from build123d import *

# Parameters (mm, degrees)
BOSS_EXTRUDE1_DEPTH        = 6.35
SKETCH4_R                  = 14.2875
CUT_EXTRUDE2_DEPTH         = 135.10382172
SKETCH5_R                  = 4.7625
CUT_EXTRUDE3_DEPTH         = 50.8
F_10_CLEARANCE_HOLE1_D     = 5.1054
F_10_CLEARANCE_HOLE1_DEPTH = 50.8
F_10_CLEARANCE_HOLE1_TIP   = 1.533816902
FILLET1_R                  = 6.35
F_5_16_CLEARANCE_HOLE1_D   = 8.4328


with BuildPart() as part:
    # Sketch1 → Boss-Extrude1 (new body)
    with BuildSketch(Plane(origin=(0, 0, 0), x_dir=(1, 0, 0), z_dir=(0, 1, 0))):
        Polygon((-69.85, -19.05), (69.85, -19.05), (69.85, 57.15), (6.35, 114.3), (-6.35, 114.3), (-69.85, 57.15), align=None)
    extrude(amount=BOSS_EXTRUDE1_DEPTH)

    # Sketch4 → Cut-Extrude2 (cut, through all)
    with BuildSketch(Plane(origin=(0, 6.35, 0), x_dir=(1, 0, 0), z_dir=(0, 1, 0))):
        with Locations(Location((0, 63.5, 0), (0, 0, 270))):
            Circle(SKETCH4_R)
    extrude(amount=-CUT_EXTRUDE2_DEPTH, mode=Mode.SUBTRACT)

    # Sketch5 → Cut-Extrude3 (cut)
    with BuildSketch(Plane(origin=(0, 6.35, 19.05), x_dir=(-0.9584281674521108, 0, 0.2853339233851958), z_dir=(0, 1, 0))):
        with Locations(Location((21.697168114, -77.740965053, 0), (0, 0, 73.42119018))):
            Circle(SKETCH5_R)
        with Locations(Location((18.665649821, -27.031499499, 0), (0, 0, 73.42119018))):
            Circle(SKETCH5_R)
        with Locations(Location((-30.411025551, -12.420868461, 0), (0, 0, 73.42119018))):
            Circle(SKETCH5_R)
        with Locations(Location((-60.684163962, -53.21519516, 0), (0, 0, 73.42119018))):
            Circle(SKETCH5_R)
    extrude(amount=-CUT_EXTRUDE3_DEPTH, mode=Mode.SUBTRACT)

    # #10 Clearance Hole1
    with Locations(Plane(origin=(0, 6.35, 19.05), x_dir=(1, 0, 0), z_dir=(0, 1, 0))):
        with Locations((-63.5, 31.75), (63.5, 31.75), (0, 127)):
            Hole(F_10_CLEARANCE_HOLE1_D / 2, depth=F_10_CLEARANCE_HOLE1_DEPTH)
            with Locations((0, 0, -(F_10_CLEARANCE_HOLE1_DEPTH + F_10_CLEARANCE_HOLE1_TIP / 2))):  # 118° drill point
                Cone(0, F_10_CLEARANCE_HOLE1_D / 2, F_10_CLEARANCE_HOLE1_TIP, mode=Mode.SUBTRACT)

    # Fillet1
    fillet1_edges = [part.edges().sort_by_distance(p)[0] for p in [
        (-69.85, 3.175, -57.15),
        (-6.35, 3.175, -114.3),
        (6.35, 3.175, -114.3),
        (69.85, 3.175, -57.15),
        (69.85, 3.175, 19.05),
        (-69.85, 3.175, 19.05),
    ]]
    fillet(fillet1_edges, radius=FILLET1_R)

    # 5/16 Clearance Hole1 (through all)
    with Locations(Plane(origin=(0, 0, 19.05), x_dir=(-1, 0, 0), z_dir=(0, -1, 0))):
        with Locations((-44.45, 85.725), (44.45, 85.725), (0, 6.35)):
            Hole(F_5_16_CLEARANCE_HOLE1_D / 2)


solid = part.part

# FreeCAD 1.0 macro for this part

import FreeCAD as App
import Part
import Sketcher
Q = App.Units.Quantity


def edges_at(feature, points):
    """Names of the edges that pass closest to the given points."""
    edges = feature.Shape.Edges
    near = lambda p: min(range(len(edges)), key=lambda i: edges[i].distToShape(Part.Vertex(*p))[0])
    return sorted({f"Edge{near(p) + 1}" for p in points})


def add_polygon(sketch, points):
    """Adds a closed chain of lines whose ends are joined by coincident constraints."""
    first, n = sketch.GeometryCount, len(points)
    for a, b in zip(points, points[1:] + points[:1]):
        sketch.addGeometry(Part.LineSegment(App.Vector(*a, 0), App.Vector(*b, 0)), False)
    for i in range(n):
        sketch.addConstraint(Sketcher.Constraint("Coincident", first + i, 2, first + (i + 1) % n, 1))

doc = App.newDocument("Part")
params = doc.addObject("Spreadsheet::Sheet", "Params")
for row, (alias, value) in enumerate([
    ("sketch1_height", "3 in"),
    ("sketch1_width", "5.5 in"),
    ("sketch1_width2", "0.5 in"),
    ("pad1_length", "0.25 in"),
    ("sketch2_diameter", "1.125 in"),
    ("sketch3_diameter", "0.375 in"),
    ("pocket2_length", "2 in"),
    ("sketch4_diameter", "0.201 in"),
    ("hole_diameter", "0.201 in"),
    ("hole_depth", "2 in"),
    ("fillet_radius", "0.25 in"),
    ("sketch5_diameter", "0.332 in"),
    ("hole2_diameter", "0.332 in"),
], start=1):
    params.set(f"A{row}", alias)
    params.set(f"B{row}", "=" + value)
    params.setAlias(f"B{row}", alias)

body = doc.addObject("PartDesign::Body", "Body")

# Sketch on XZ plane
sketch1 = body.newObject("Sketcher::SketchObject", "Sketch")
sketch1.AttachmentSupport = (doc.getObject("XZ_Plane"), [""])
sketch1.MapMode = "FlatFace"
add_polygon(sketch1, [(-70, 19), (70, 19), (70, -57), (6, -114), (-6, -114), (-70, -57)])  # lines 0-5
sketch1.addConstraint([
    Sketcher.Constraint("Horizontal", 0),
    Sketcher.Constraint("Vertical", 1),
    Sketcher.Constraint("Horizontal", 3),
    Sketcher.Constraint("Vertical", 5),
    Sketcher.Constraint("Symmetric", 1, 2, 4, 2, -2),
    Sketcher.Constraint("Equal", 2, 4),
    Sketcher.Constraint("DistanceY", 1, 2, 1, 1, Q("3 in")),
    Sketcher.Constraint("DistanceX", 0, 1, 0, 2, Q("5.5 in")),
    Sketcher.Constraint("DistanceX", 3, 2, 3, 1, Q("0.5 in")),
    Sketcher.Constraint("DistanceY", 2, 2, -1, 1, Q("4.5 in")),
    Sketcher.Constraint("DistanceY", -1, 1, 0, 2, Q("0.75 in")),
])
sketch1.setExpression("Constraints[12]", "Params.sketch1_height")
sketch1.setExpression("Constraints[13]", "Params.sketch1_width")
sketch1.setExpression("Constraints[14]", "Params.sketch1_width2")
pad1 = body.newObject("PartDesign::Pad", "Pad")
pad1.Profile = sketch1
pad1.setExpression("Length", "Params.pad1_length")
pad1.Reversed = True

# Sketch on XZ plane
sketch2 = body.newObject("Sketcher::SketchObject", "Sketch001")
sketch2.AttachmentSupport = (doc.getObject("XZ_Plane"), [""])
sketch2.MapMode = "FlatFace"
sketch2.AttachmentOffset = App.Placement(App.Vector(0, 0, -0.25 * 25.4), App.Rotation())
sketch2.addGeometry(Part.Circle(App.Vector(0, -64, 0), App.Vector(0, 0, 1), 14), False)
sketch2.addConstraint([
    Sketcher.Constraint("PointOnObject", 0, 3, -2),
    Sketcher.Constraint("Diameter", 0, Q("1.125 in")),
    Sketcher.Constraint("DistanceY", 0, 3, -1, 1, Q("2.5 in")),
])
sketch2.setExpression("Constraints[1]", "Params.sketch2_diameter")
pocket1 = body.newObject("PartDesign::Pocket", "Pocket")
pocket1.Profile = sketch2
pocket1.Type = "ThroughAll"
pocket1.Reversed = True

# Sketch on XZ plane
sketch3 = body.newObject("Sketcher::SketchObject", "Sketch002")
sketch3.AttachmentSupport = (doc.getObject("XZ_Plane"), [""])
sketch3.MapMode = "FlatFace"
sketch3.AttachmentOffset = App.Placement(App.Vector(0, 0, -0.25 * 25.4), App.Rotation())
sketch3.addGeometry([
    Part.Circle(App.Vector(-43, -49.3, 0), App.Vector(0, 0, 1), 4.8),
    Part.Circle(App.Vector(-25.6, -1.5, 0), App.Vector(0, 0, 1), 4.8),
    Part.Circle(App.Vector(25.6, -1.5, 0), App.Vector(0, 0, 1), 4.8),
    Part.Circle(App.Vector(43, -49.3, 0), App.Vector(0, 0, 1), 4.8),
], False)
sketch3.addConstraint([
    Sketcher.Constraint("Equal", 0, 1),
    Sketcher.Constraint("Equal", 1, 2),
    Sketcher.Constraint("Equal", 2, 3),
    Sketcher.Constraint("Symmetric", 1, 3, 2, 3, -2),
    Sketcher.Constraint("Symmetric", 0, 3, 3, 3, -2),
    Sketcher.Constraint("Diameter", 0, Q("0.375 in")),
    Sketcher.Constraint("DistanceX", 0, 3, 2, 3, Q("2.7 in")),
    Sketcher.Constraint("DistanceX", 0, 3, -1, 1, Q("42.977312 mm")),
    Sketcher.Constraint("DistanceY", 0, 3, -1, 1, Q("49.268193 mm")),
    Sketcher.Constraint("DistanceY", 1, 3, -1, 1, Q("1.531807 mm")),
])
sketch3.setExpression("Constraints[5]", "Params.sketch3_diameter")
pocket2 = body.newObject("PartDesign::Pocket", "Pocket001")
pocket2.Profile = sketch3
pocket2.setExpression("Length", "Params.pocket2_length")
pocket2.Reversed = True

# Sketch on XZ plane
sketch4 = body.newObject("Sketcher::SketchObject", "Sketch003")
sketch4.AttachmentSupport = (doc.getObject("XZ_Plane"), [""])
sketch4.MapMode = "FlatFace"
sketch4.AttachmentOffset = App.Placement(App.Vector(0, 0, -0.25 * 25.4), App.Rotation())
sketch4.addGeometry([
    Part.Circle(App.Vector(-63.5, -12.7, 0), App.Vector(0, 0, 1), 2.6),
    Part.Circle(App.Vector(63.5, -12.7, 0), App.Vector(0, 0, 1), 2.6),
    Part.Circle(App.Vector(0, -108, 0), App.Vector(0, 0, 1), 2.6),
], False)
sketch4.addConstraint([
    Sketcher.Constraint("Equal", 0, 1),
    Sketcher.Constraint("Equal", 1, 2),
    Sketcher.Constraint("Symmetric", 0, 3, 1, 3, -2),
    Sketcher.Constraint("PointOnObject", 2, 3, -2),
    Sketcher.Constraint("Diameter", 0, Q("0.201 in")),
    Sketcher.Constraint("DistanceX", 0, 3, 1, 3, Q("5 in")),
    Sketcher.Constraint("DistanceY", 0, 3, -1, 1, Q("0.5 in")),
    Sketcher.Constraint("DistanceY", 2, 3, -1, 1, Q("4.25 in")),
])
sketch4.setExpression("Constraints[4]", "Params.sketch4_diameter")
doc.recompute()
hole = body.newObject("PartDesign::Hole", "Hole")
hole.Profile = sketch4
hole.ThreadType = "None"
hole.setExpression("Diameter", "Params.hole_diameter")
hole.DepthType = "Dimension"
hole.setExpression("Depth", "Params.hole_depth")
hole.DrillPoint = "Angled"
hole.DrillPointAngle = 118
hole.Reversed = True
doc.recompute()

fillet = body.newObject("PartDesign::Fillet", "Fillet")
fillet.Base = (hole, edges_at(hole, [
    (-69.85, 3.175, -57.15),
    (-6.35, 3.175, -114.3),
    (6.35, 3.175, -114.3),
    (69.85, 3.175, -57.15),
    (69.85, 3.175, 19.05),
    (-69.85, 3.175, 19.05),
]))
fillet.setExpression("Radius", "Params.fillet_radius")

# Sketch on XZ plane
sketch5 = body.newObject("Sketcher::SketchObject", "Sketch004")
sketch5.AttachmentSupport = (doc.getObject("XZ_Plane"), [""])
sketch5.MapMode = "FlatFace"
sketch5.addGeometry([
    Part.Circle(App.Vector(44.5, -66.7, 0), App.Vector(0, 0, 1), 4.2),
    Part.Circle(App.Vector(-44.5, -66.7, 0), App.Vector(0, 0, 1), 4.2),
    Part.Circle(App.Vector(0, 12.7, 0), App.Vector(0, 0, 1), 4.2),
], False)
sketch5.addConstraint([
    Sketcher.Constraint("Equal", 0, 1),
    Sketcher.Constraint("Equal", 1, 2),
    Sketcher.Constraint("Symmetric", 0, 3, 1, 3, -2),
    Sketcher.Constraint("PointOnObject", 2, 3, -2),
    Sketcher.Constraint("Diameter", 0, Q("0.332 in")),
    Sketcher.Constraint("DistanceY", -1, 1, 2, 3, Q("0.5 in")),
    Sketcher.Constraint("DistanceX", 1, 3, 0, 3, Q("3.5 in")),
    Sketcher.Constraint("DistanceY", 0, 3, -1, 1, Q("2.625 in")),
])
sketch5.setExpression("Constraints[4]", "Params.sketch5_diameter")
doc.recompute()
hole2 = body.newObject("PartDesign::Hole", "Hole001")
hole2.Profile = sketch5
hole2.ThreadType = "None"
hole2.setExpression("Diameter", "Params.hole2_diameter")
hole2.DepthType = "ThroughAll"

doc.recompute()
